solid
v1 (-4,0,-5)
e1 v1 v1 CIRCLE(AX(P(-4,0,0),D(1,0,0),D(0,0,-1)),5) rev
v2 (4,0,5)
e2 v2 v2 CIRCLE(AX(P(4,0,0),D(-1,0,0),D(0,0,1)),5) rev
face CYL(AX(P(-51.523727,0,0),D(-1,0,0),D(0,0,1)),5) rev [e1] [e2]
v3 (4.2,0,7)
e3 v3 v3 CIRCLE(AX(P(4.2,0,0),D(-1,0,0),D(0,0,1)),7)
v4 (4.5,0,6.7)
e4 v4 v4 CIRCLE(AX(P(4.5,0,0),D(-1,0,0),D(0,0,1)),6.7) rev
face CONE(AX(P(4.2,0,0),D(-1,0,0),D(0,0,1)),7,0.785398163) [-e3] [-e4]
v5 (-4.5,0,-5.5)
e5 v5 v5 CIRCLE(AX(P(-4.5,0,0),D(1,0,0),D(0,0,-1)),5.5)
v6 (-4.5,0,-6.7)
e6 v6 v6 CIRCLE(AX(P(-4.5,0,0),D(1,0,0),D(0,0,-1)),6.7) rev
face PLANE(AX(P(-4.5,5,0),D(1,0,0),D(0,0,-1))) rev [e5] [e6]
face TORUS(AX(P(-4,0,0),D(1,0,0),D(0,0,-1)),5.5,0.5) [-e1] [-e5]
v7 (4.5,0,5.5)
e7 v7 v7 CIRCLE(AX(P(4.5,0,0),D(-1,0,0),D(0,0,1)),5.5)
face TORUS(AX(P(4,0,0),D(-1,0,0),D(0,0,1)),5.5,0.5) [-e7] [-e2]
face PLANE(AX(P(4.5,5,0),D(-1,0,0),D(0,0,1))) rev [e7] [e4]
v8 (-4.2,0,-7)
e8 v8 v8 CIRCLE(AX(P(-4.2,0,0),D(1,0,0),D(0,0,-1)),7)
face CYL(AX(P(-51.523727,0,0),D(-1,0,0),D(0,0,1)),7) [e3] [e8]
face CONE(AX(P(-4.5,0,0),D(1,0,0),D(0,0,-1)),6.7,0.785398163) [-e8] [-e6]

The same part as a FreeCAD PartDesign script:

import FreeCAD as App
import Part
import Sketcher

V = App.Vector


def edges_at(feature, points):
    """Names of the edges that pass closest to the given points."""
    edges = feature.Shape.Edges
    near = lambda p: min(range(len(edges)), key=lambda i: edges[i].distToShape(Part.Vertex(*p))[0])
    return sorted({f"Edge{near(p) + 1}" for p in points})

doc = App.newDocument("Part")
body = doc.addObject("PartDesign::Body", "Body")

# Sketch on XY plane
sketch1 = body.newObject("Sketcher::SketchObject", "Sketch")
sketch1.AttachmentSupport = (doc.getObject("XY_Plane"), [""])
sketch1.MapMode = "FlatFace"
sketch1.addGeometry(Part.LineSegment(V(-4.5, 7, 0), V(-4.5, 5, 0)), False)
sketch1.addGeometry(Part.LineSegment(V(-4.5, 5, 0), V(4.5, 5, 0)), False)
sketch1.addGeometry(Part.LineSegment(V(4.5, 5, 0), V(4.5, 7, 0)), False)
sketch1.addGeometry(Part.LineSegment(V(4.5, 7, 0), V(-4.5, 7, 0)), False)
sketch1.addConstraint(Sketcher.Constraint("Coincident", 0, 2, 1, 1))
sketch1.addConstraint(Sketcher.Constraint("Coincident", 1, 2, 2, 1))
sketch1.addConstraint(Sketcher.Constraint("Coincident", 2, 2, 3, 1))
sketch1.addConstraint(Sketcher.Constraint("Coincident", 3, 2, 0, 1))
sketch1.addConstraint(Sketcher.Constraint("Vertical", 0))
sketch1.addConstraint(Sketcher.Constraint("Horizontal", 1))
sketch1.addConstraint(Sketcher.Constraint("Vertical", 2))
sketch1.addConstraint(Sketcher.Constraint("Horizontal", 3))
sketch1.addConstraint(Sketcher.Constraint("DistanceX", 1, 1, 1, 2, 9.0))
sketch1.addConstraint(Sketcher.Constraint("DistanceY", 0, 2, 0, 1, 2.0))
sketch1.addConstraint(Sketcher.Constraint("DistanceY", -1, 1, 0, 2, 5.0))
sketch1.addConstraint(Sketcher.Constraint("DistanceX", 0, 2, -1, 1, 4.5))
revolution = body.newObject("PartDesign::Revolution", "Revolution")
revolution.Profile = sketch1
revolution.ReferenceAxis = (sketch1, ["H_Axis"])
revolution.Angle = 360
doc.recompute()

chamfer = body.newObject("PartDesign::Chamfer", "Chamfer")
chamfer.Base = (revolution, edges_at(revolution, [(4.5, -7, 0), (-4.5, -7, 0)]))
chamfer.Size = 0.3
doc.recompute()

fillet = body.newObject("PartDesign::Fillet", "Fillet")
fillet.Base = (chamfer, edges_at(chamfer, [(-4.5, -5, 0), (4.5, -5, 0)]))
fillet.Radius = 0.5

doc.recompute()
